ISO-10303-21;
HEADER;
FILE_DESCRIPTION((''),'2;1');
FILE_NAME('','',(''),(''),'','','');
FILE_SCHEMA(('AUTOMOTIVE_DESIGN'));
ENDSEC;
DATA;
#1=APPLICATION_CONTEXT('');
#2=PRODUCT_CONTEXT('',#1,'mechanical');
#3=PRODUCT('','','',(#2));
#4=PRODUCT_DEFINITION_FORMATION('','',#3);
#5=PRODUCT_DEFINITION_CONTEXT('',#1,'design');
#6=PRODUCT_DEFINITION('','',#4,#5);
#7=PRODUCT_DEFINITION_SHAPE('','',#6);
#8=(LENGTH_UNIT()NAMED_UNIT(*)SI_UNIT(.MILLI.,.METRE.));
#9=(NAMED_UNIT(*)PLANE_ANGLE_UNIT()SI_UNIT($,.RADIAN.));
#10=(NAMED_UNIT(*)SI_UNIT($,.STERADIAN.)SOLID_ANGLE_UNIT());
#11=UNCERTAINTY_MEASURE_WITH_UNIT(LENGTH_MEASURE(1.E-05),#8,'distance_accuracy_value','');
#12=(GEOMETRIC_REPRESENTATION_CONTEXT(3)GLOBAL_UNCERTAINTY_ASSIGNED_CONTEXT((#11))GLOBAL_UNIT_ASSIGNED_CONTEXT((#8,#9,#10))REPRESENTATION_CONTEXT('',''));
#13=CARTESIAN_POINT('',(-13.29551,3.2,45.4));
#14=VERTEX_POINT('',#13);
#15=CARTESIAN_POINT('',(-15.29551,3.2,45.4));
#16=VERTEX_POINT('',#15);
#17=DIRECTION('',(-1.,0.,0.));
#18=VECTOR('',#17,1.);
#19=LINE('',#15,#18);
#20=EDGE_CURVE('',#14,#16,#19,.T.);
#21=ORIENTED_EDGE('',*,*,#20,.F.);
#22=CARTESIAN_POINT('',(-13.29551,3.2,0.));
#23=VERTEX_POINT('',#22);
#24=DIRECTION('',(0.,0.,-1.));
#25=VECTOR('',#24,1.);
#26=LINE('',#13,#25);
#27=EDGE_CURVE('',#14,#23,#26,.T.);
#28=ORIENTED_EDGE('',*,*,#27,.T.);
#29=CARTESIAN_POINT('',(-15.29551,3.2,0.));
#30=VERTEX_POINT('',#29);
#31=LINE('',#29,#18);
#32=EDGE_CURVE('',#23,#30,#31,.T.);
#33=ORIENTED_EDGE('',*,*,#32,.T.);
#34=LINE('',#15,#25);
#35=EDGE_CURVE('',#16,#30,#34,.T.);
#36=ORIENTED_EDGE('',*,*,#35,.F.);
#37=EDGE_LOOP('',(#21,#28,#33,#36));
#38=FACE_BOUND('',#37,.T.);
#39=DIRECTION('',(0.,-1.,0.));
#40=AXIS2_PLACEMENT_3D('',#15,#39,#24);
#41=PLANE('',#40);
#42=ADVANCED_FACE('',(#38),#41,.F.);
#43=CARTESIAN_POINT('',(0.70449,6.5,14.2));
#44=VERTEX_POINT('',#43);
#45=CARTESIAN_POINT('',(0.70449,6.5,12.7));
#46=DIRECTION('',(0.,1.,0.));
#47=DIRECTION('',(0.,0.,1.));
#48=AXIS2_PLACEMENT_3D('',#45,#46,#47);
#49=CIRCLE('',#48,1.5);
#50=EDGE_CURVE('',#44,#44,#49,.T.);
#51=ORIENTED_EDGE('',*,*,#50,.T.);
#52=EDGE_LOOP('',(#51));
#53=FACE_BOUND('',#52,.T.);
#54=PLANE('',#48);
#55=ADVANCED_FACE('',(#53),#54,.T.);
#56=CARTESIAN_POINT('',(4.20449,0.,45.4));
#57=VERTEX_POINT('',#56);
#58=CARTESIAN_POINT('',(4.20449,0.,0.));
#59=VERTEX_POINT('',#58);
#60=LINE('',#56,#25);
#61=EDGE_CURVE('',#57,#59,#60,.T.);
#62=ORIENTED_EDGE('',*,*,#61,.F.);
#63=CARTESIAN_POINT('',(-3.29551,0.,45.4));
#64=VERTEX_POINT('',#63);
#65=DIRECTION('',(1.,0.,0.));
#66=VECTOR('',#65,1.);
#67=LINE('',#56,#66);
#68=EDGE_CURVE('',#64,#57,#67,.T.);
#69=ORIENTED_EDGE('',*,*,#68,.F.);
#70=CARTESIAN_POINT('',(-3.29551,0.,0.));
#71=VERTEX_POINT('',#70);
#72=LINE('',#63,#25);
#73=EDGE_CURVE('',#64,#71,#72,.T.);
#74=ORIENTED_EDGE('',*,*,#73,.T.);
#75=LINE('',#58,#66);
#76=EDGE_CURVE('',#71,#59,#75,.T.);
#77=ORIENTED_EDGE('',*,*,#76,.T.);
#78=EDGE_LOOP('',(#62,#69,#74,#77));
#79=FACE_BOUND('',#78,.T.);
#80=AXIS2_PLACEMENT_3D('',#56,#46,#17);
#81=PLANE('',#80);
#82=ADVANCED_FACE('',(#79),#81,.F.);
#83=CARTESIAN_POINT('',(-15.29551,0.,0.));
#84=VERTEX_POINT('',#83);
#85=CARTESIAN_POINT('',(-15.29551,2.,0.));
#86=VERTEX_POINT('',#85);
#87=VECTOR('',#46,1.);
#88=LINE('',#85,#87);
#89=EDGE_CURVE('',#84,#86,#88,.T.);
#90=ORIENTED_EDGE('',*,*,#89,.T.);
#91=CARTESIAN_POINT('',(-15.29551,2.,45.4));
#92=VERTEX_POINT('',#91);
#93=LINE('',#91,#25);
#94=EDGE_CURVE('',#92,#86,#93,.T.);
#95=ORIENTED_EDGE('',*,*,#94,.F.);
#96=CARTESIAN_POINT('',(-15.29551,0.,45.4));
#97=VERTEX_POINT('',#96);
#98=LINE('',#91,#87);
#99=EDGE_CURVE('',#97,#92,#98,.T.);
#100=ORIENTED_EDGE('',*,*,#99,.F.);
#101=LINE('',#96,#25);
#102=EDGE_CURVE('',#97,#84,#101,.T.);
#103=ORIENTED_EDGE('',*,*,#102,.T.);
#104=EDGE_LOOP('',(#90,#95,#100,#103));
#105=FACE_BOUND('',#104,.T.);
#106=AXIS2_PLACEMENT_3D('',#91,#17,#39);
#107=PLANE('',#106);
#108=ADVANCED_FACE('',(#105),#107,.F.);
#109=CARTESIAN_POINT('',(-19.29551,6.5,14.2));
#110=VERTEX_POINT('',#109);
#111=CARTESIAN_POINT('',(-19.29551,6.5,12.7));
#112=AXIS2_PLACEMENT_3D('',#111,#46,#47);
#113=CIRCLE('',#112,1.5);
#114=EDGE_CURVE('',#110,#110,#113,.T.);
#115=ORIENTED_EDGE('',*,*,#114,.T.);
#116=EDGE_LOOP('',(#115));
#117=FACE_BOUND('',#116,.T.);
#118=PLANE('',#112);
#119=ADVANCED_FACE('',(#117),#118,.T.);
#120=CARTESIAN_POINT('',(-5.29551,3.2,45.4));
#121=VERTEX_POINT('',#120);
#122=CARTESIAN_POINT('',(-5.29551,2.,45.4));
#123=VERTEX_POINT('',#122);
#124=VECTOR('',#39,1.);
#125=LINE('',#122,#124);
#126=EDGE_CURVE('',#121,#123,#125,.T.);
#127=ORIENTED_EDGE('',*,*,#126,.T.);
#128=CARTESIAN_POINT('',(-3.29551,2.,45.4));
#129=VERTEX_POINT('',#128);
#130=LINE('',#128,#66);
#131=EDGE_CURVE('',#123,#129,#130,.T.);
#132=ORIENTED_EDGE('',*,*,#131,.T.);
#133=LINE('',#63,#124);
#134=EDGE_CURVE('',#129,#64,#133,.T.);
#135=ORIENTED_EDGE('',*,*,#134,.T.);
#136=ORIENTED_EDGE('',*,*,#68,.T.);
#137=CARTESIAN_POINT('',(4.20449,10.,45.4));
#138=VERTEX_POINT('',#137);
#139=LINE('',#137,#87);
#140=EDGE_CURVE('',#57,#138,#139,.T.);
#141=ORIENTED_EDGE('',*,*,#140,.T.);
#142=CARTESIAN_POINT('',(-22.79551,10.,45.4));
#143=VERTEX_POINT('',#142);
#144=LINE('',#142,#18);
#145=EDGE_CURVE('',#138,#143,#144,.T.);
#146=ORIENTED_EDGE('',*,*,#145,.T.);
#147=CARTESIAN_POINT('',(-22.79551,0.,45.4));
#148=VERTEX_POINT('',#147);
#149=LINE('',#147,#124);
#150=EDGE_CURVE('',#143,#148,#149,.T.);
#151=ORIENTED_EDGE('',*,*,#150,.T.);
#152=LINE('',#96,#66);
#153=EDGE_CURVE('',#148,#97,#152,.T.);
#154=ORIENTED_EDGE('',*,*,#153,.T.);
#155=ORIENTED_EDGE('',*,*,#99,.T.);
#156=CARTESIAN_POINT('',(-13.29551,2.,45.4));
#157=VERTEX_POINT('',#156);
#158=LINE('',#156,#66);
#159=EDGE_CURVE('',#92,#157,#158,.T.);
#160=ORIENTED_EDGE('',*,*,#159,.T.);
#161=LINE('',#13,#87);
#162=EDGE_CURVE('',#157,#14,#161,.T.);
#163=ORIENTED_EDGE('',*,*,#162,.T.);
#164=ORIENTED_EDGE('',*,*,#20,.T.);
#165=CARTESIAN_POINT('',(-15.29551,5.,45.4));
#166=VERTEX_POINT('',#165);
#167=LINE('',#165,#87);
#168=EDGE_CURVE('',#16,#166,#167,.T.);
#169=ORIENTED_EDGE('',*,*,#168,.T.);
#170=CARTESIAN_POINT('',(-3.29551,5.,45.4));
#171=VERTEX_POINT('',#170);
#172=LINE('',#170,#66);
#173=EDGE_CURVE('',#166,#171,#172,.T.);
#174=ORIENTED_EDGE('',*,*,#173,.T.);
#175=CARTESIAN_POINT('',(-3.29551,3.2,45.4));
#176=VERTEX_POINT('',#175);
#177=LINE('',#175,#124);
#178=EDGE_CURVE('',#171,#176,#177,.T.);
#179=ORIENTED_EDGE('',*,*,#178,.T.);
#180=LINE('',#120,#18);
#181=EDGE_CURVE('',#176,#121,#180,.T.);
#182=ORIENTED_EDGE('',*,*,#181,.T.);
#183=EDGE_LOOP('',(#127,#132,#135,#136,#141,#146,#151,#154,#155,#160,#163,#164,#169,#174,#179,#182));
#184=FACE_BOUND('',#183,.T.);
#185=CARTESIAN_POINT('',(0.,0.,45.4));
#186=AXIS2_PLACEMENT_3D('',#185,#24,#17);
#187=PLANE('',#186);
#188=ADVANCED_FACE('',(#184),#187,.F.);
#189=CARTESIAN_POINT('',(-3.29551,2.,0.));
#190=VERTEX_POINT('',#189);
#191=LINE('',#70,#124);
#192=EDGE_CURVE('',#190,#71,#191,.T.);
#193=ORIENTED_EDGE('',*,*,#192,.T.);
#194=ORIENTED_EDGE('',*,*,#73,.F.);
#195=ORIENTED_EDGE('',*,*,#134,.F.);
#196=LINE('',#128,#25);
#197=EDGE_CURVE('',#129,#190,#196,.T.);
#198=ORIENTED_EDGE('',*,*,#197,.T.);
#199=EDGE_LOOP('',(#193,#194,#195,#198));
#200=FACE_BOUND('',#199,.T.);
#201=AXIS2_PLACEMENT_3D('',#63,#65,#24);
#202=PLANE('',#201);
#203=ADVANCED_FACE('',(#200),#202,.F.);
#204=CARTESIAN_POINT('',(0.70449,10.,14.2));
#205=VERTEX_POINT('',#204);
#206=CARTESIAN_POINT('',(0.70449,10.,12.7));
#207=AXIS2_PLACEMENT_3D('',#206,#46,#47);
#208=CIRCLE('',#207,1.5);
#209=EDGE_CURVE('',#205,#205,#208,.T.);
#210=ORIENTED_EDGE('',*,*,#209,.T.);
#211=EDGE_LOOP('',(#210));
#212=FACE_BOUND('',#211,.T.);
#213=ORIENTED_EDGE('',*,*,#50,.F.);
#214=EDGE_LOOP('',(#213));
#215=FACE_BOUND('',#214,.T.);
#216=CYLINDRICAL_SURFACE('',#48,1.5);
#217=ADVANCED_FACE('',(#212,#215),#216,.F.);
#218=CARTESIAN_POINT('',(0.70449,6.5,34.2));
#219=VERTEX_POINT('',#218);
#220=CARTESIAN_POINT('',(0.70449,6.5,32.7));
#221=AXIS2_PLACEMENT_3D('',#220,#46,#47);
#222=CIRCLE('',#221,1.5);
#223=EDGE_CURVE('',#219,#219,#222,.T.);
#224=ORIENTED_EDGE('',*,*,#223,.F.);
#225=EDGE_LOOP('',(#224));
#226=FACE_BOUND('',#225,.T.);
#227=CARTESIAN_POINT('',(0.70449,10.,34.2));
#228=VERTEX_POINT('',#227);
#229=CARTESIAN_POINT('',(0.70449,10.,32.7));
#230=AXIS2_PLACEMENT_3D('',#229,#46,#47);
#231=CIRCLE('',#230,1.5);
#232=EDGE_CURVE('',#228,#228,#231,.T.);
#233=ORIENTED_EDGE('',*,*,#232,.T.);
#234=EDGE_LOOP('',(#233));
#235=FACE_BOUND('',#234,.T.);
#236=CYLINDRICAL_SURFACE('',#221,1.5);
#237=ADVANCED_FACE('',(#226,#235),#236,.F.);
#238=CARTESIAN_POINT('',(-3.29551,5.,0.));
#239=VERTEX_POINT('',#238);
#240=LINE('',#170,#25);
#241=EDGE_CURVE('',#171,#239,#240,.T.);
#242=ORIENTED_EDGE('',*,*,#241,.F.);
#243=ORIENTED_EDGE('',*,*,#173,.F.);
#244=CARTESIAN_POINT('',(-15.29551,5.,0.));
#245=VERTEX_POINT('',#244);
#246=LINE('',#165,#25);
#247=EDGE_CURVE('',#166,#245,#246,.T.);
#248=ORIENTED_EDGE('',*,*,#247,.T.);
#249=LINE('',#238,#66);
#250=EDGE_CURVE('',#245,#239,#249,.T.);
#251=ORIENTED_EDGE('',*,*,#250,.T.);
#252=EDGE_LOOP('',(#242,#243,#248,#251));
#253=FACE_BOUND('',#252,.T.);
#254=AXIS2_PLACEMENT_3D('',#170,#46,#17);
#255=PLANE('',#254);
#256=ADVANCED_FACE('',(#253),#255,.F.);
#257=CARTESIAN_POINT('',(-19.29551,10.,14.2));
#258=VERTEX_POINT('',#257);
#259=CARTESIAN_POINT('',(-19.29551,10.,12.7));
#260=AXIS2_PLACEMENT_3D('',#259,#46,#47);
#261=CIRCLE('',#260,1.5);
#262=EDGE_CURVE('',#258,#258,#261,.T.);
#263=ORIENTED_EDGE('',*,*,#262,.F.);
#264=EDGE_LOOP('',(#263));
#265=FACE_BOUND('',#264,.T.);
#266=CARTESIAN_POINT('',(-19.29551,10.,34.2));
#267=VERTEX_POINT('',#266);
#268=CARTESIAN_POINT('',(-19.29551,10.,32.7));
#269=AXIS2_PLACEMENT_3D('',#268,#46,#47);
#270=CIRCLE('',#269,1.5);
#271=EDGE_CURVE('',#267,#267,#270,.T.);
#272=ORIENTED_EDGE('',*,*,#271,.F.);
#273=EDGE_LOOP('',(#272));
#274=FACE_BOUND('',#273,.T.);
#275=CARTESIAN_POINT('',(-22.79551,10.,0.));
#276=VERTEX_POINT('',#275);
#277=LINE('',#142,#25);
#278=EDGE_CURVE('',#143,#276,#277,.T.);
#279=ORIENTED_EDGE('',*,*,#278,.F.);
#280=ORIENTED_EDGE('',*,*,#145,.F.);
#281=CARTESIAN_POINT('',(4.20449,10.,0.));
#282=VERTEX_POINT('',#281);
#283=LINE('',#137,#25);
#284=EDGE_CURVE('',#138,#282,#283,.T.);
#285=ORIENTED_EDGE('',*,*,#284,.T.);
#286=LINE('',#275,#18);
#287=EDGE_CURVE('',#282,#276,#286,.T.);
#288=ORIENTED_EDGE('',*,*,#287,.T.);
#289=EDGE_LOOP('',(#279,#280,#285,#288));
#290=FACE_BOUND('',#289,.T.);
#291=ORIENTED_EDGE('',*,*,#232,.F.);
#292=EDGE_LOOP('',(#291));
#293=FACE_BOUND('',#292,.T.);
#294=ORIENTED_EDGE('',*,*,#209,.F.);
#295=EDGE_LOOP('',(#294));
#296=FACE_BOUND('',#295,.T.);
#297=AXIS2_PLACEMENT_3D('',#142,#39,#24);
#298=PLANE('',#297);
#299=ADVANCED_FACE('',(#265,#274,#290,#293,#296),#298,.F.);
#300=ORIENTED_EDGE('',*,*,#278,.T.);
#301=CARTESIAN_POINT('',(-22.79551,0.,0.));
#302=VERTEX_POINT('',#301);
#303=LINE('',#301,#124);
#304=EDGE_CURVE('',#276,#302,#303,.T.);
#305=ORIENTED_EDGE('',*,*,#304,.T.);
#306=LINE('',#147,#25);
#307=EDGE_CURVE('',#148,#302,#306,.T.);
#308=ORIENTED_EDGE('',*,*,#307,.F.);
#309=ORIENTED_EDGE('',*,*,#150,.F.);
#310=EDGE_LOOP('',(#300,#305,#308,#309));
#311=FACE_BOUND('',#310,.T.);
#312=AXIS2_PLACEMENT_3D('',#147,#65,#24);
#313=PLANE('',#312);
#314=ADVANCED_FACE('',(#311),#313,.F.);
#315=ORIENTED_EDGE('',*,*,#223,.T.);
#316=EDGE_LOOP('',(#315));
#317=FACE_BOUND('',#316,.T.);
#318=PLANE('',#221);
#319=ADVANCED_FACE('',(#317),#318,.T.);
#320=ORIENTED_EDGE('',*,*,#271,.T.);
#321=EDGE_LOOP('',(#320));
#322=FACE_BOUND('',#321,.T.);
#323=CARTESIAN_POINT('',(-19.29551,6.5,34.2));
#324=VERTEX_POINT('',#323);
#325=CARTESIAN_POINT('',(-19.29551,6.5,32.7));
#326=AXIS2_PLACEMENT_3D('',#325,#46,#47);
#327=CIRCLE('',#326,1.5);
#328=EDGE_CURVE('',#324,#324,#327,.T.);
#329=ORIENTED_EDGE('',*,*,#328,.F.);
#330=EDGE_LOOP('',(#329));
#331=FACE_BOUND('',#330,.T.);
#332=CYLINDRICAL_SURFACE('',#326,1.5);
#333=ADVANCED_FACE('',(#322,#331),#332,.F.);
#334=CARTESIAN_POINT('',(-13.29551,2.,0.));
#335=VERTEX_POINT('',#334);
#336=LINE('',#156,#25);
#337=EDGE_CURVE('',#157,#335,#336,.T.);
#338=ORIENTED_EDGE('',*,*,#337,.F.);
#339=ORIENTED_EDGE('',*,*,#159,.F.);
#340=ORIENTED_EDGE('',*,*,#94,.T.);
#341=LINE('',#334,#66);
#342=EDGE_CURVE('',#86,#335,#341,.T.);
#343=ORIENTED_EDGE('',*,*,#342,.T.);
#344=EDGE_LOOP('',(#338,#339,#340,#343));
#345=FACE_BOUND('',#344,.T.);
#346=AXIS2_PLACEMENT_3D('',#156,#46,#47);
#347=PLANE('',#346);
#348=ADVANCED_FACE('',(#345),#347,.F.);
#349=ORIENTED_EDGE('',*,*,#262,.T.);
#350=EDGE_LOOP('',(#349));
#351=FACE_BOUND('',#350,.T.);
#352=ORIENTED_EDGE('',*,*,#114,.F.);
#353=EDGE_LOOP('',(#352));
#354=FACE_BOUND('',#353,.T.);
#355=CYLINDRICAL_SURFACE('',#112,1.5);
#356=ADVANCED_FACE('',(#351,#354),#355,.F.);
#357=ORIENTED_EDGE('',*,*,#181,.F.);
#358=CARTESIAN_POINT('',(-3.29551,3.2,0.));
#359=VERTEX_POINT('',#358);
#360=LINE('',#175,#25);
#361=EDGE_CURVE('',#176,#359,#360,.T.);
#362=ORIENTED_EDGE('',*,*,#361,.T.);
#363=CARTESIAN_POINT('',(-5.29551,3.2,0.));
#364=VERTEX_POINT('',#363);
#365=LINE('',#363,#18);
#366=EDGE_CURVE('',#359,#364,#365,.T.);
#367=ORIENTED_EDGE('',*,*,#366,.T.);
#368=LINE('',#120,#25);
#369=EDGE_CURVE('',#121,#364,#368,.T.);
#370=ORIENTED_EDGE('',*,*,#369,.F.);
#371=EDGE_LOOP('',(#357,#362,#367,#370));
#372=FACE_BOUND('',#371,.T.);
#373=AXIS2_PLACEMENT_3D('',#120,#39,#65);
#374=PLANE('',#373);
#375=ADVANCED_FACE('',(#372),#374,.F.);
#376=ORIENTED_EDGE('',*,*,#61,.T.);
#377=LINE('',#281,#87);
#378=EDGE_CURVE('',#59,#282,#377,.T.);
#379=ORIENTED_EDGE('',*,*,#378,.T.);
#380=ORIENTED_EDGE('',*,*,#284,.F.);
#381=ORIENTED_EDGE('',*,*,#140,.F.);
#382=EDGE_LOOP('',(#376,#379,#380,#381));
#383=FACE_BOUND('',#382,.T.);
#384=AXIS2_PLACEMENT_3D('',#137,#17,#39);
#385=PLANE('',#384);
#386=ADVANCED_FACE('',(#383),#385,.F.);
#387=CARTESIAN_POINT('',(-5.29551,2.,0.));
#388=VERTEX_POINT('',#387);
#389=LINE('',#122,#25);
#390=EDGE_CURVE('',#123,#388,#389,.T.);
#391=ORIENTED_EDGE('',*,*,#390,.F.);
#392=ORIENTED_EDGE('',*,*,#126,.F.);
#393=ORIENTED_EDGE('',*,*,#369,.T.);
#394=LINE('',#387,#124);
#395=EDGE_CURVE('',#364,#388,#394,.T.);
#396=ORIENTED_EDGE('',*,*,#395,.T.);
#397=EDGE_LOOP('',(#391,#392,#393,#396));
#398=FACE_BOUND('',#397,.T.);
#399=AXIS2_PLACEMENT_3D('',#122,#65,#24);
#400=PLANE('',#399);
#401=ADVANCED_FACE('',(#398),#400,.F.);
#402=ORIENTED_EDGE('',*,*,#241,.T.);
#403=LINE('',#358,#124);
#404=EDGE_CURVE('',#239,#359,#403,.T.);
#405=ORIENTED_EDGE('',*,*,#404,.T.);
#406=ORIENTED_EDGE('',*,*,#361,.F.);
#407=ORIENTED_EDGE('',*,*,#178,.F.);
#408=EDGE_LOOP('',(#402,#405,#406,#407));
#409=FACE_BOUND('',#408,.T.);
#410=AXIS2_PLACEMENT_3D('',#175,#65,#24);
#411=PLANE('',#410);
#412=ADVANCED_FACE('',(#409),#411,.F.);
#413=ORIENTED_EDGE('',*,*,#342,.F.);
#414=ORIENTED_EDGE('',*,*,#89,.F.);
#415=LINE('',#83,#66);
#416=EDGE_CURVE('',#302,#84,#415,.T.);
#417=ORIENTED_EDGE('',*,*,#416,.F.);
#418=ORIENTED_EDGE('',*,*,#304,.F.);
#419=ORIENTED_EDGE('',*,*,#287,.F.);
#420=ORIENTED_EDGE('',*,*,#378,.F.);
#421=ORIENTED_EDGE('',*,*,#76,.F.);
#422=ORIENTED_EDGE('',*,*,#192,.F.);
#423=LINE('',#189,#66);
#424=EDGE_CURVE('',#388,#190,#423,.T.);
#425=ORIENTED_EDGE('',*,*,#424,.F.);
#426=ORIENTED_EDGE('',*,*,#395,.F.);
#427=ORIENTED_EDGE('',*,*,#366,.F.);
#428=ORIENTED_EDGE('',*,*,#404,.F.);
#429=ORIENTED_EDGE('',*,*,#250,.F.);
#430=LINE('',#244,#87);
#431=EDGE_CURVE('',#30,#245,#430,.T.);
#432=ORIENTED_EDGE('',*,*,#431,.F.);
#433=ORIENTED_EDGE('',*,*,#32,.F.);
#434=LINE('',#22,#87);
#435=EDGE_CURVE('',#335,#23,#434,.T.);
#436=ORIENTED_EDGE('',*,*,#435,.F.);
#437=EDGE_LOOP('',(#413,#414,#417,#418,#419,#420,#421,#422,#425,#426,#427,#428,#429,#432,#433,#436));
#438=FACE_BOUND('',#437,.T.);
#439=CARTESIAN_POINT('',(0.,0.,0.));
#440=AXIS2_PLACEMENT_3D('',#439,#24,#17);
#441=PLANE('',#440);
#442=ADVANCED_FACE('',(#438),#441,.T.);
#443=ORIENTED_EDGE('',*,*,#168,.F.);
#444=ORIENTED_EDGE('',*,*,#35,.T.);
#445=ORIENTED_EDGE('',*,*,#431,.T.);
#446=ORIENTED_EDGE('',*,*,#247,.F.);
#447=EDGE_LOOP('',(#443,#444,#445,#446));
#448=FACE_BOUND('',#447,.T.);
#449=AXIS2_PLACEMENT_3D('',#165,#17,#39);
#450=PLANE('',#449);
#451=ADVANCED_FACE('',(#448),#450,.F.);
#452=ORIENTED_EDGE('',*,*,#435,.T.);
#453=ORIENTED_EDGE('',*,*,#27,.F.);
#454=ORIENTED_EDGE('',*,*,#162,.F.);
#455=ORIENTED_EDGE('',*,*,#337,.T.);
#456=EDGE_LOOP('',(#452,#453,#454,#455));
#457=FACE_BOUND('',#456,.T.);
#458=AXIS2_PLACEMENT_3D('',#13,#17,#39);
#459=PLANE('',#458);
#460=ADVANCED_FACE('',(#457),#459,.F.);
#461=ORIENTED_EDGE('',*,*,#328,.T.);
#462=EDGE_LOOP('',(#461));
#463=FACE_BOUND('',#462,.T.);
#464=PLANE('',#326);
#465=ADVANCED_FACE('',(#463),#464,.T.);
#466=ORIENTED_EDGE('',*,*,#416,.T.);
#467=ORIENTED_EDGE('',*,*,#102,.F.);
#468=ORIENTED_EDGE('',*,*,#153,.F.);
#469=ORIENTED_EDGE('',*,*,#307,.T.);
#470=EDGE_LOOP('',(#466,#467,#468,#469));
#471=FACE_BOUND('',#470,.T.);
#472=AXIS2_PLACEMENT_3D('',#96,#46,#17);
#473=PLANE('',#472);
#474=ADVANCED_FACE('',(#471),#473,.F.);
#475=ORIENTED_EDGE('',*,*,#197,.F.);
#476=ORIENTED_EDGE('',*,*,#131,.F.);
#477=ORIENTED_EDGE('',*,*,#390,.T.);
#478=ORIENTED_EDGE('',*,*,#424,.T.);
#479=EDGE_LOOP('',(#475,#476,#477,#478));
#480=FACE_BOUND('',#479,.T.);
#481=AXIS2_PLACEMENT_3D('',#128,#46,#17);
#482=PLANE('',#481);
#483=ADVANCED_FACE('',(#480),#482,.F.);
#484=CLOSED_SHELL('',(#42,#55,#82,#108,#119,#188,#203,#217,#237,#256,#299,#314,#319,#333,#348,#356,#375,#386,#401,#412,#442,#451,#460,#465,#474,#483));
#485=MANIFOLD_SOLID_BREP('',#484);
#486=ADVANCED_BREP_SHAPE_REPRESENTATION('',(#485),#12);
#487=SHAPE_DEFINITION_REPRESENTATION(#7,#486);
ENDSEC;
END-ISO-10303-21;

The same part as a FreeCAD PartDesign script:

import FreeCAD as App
import Part
import Sketcher
Q = App.Units.Quantity


def add_polygon(sketch, points):
    """Adds a closed chain of lines whose ends are joined by coincident constraints."""
    first, n = sketch.GeometryCount, len(points)
    for a, b in zip(points, points[1:] + points[:1]):
        sketch.addGeometry(Part.LineSegment(App.Vector(*a, 0), App.Vector(*b, 0)), False)
    for i in range(n):
        sketch.addConstraint(Sketcher.Constraint("Coincident", first + i, 2, first + (i + 1) % n, 1))

doc = App.newDocument("Part")
body = doc.addObject("PartDesign::Body", "Body")

# Sketch on XY plane
sketch1 = body.newObject("Sketcher::SketchObject", "Sketch")
sketch1.AttachmentSupport = (doc.getObject("XY_Plane"), [""])
sketch1.MapMode = "FlatFace"
add_polygon(sketch1, [(4.2, 10), (-22.8, 10), (-22.8, 0), (-15.3, 0), (-15.3, 2), (-13.3, 2), (-13.3, 3.2), (-15.3, 3.2), (-15.3, 5), (-3.3, 5), (-3.3, 3.2), (-5.3, 3.2), (-5.3, 2), (-3.3, 2), (-3.3, 0), (4.2, 0)])  # lines 0-15
sketch1.addConstraint(Sketcher.Constraint("Horizontal", 0))
sketch1.addConstraint(Sketcher.Constraint("Vertical", 1))
sketch1.addConstraint(Sketcher.Constraint("Horizontal", 2))
sketch1.addConstraint(Sketcher.Constraint("Vertical", 3))
sketch1.addConstraint(Sketcher.Constraint("Horizontal", 4))
sketch1.addConstraint(Sketcher.Constraint("Vertical", 5))
sketch1.addConstraint(Sketcher.Constraint("Horizontal", 6))
sketch1.addConstraint(Sketcher.Constraint("Vertical", 7))
sketch1.addConstraint(Sketcher.Constraint("Horizontal", 8))
sketch1.addConstraint(Sketcher.Constraint("Vertical", 9))
sketch1.addConstraint(Sketcher.Constraint("Horizontal", 10))
sketch1.addConstraint(Sketcher.Constraint("Vertical", 11))
sketch1.addConstraint(Sketcher.Constraint("Horizontal", 12))
sketch1.addConstraint(Sketcher.Constraint("Vertical", 13))
sketch1.addConstraint(Sketcher.Constraint("Horizontal", 14))
sketch1.addConstraint(Sketcher.Constraint("Vertical", 15))
sketch1.addConstraint(Sketcher.Constraint("PointOnObject", 1, 2, -1))
sketch1.addConstraint(Sketcher.Constraint("PointOnObject", 13, 2, -1))
sketch1.addConstraint(Sketcher.Constraint("Horizontal", 6, 2, 9, 2))
sketch1.addConstraint(Sketcher.Constraint("Horizontal", 4, 2, 11, 2))
sketch1.addConstraint(Sketcher.Constraint("Vertical", 3, 2, 6, 2))
sketch1.addConstraint(Sketcher.Constraint("Vertical", 9, 2, 12, 2))
sketch1.addConstraint(Sketcher.Constraint("Equal", 6, 10))
sketch1.addConstraint(Sketcher.Constraint("Equal", 2, 14))
sketch1.addConstraint(Sketcher.Constraint("Equal", 12, 3))
sketch1.addConstraint(Sketcher.Constraint("DistanceX", 0, 2, 0, 1, Q("27 mm")))
sketch1.addConstraint(Sketcher.Constraint("DistanceX", 4, 1, 4, 2, Q("2 mm")))
sketch1.addConstraint(Sketcher.Constraint("DistanceX", 8, 1, 8, 2, Q("12 mm")))
sketch1.addConstraint(Sketcher.Constraint("DistanceY", 1, 2, 1, 1, Q("10 mm")))
sketch1.addConstraint(Sketcher.Constraint("DistanceY", 5, 1, 5, 2, Q("1.2 mm")))
sketch1.addConstraint(Sketcher.Constraint("DistanceY", 7, 1, 7, 2, Q("1.8 mm")))
sketch1.addConstraint(Sketcher.Constraint("DistanceX", 0, 2, -1, 1, Q("22.79551 mm")))
pad1 = body.newObject("PartDesign::Pad", "Pad")
pad1.Profile = sketch1
pad1.Length = 45.4

# Sketch on XZ plane
sketch2 = body.newObject("Sketcher::SketchObject", "Sketch001")
sketch2.AttachmentSupport = (doc.getObject("XZ_Plane"), [""])
sketch2.MapMode = "FlatFace"
sketch2.AttachmentOffset = App.Placement(App.Vector(0, 0, -10), App.Rotation())
sketch2.addGeometry(Part.Circle(App.Vector(-19.3, 32.7, 0), App.Vector(0, 0, 1), 1.5), False)
sketch2.addGeometry(Part.Circle(App.Vector(-19.3, 12.7, 0), App.Vector(0, 0, 1), 1.5), False)
sketch2.addGeometry(Part.Circle(App.Vector(0.7, 12.7, 0), App.Vector(0, 0, 1), 1.5), False)
sketch2.addGeometry(Part.Circle(App.Vector(0.7, 32.7, 0), App.Vector(0, 0, 1), 1.5), False)
sketch2.addConstraint(Sketcher.Constraint("Equal", 0, 1))
sketch2.addConstraint(Sketcher.Constraint("Equal", 1, 2))
sketch2.addConstraint(Sketcher.Constraint("Equal", 2, 3))
sketch2.addConstraint(Sketcher.Constraint("Horizontal", 1, 3, 2, 3))
sketch2.addConstraint(Sketcher.Constraint("Horizontal", 0, 3, 3, 3))
sketch2.addConstraint(Sketcher.Constraint("Vertical", 0, 3, 1, 3))
sketch2.addConstraint(Sketcher.Constraint("Vertical", 2, 3, 3, 3))
sketch2.addConstraint(Sketcher.Constraint("Diameter", 0, Q("3 mm")))
sketch2.addConstraint(Sketcher.Constraint("DistanceY", 1, 3, 0, 3, Q("20 mm")))
sketch2.addConstraint(Sketcher.Constraint("DistanceX", 1, 3, 2, 3, Q("20 mm")))
sketch2.addConstraint(Sketcher.Constraint("DistanceY", -1, 1, 0, 3, Q("32.7 mm")))
sketch2.addConstraint(Sketcher.Constraint("DistanceX", 0, 3, -1, 1, Q("19.29551 mm")))
pocket1 = body.newObject("PartDesign::Pocket", "Pocket")
pocket1.Profile = sketch2
pocket1.Length = 3.5
pocket1.Reversed = True

doc.recompute()
